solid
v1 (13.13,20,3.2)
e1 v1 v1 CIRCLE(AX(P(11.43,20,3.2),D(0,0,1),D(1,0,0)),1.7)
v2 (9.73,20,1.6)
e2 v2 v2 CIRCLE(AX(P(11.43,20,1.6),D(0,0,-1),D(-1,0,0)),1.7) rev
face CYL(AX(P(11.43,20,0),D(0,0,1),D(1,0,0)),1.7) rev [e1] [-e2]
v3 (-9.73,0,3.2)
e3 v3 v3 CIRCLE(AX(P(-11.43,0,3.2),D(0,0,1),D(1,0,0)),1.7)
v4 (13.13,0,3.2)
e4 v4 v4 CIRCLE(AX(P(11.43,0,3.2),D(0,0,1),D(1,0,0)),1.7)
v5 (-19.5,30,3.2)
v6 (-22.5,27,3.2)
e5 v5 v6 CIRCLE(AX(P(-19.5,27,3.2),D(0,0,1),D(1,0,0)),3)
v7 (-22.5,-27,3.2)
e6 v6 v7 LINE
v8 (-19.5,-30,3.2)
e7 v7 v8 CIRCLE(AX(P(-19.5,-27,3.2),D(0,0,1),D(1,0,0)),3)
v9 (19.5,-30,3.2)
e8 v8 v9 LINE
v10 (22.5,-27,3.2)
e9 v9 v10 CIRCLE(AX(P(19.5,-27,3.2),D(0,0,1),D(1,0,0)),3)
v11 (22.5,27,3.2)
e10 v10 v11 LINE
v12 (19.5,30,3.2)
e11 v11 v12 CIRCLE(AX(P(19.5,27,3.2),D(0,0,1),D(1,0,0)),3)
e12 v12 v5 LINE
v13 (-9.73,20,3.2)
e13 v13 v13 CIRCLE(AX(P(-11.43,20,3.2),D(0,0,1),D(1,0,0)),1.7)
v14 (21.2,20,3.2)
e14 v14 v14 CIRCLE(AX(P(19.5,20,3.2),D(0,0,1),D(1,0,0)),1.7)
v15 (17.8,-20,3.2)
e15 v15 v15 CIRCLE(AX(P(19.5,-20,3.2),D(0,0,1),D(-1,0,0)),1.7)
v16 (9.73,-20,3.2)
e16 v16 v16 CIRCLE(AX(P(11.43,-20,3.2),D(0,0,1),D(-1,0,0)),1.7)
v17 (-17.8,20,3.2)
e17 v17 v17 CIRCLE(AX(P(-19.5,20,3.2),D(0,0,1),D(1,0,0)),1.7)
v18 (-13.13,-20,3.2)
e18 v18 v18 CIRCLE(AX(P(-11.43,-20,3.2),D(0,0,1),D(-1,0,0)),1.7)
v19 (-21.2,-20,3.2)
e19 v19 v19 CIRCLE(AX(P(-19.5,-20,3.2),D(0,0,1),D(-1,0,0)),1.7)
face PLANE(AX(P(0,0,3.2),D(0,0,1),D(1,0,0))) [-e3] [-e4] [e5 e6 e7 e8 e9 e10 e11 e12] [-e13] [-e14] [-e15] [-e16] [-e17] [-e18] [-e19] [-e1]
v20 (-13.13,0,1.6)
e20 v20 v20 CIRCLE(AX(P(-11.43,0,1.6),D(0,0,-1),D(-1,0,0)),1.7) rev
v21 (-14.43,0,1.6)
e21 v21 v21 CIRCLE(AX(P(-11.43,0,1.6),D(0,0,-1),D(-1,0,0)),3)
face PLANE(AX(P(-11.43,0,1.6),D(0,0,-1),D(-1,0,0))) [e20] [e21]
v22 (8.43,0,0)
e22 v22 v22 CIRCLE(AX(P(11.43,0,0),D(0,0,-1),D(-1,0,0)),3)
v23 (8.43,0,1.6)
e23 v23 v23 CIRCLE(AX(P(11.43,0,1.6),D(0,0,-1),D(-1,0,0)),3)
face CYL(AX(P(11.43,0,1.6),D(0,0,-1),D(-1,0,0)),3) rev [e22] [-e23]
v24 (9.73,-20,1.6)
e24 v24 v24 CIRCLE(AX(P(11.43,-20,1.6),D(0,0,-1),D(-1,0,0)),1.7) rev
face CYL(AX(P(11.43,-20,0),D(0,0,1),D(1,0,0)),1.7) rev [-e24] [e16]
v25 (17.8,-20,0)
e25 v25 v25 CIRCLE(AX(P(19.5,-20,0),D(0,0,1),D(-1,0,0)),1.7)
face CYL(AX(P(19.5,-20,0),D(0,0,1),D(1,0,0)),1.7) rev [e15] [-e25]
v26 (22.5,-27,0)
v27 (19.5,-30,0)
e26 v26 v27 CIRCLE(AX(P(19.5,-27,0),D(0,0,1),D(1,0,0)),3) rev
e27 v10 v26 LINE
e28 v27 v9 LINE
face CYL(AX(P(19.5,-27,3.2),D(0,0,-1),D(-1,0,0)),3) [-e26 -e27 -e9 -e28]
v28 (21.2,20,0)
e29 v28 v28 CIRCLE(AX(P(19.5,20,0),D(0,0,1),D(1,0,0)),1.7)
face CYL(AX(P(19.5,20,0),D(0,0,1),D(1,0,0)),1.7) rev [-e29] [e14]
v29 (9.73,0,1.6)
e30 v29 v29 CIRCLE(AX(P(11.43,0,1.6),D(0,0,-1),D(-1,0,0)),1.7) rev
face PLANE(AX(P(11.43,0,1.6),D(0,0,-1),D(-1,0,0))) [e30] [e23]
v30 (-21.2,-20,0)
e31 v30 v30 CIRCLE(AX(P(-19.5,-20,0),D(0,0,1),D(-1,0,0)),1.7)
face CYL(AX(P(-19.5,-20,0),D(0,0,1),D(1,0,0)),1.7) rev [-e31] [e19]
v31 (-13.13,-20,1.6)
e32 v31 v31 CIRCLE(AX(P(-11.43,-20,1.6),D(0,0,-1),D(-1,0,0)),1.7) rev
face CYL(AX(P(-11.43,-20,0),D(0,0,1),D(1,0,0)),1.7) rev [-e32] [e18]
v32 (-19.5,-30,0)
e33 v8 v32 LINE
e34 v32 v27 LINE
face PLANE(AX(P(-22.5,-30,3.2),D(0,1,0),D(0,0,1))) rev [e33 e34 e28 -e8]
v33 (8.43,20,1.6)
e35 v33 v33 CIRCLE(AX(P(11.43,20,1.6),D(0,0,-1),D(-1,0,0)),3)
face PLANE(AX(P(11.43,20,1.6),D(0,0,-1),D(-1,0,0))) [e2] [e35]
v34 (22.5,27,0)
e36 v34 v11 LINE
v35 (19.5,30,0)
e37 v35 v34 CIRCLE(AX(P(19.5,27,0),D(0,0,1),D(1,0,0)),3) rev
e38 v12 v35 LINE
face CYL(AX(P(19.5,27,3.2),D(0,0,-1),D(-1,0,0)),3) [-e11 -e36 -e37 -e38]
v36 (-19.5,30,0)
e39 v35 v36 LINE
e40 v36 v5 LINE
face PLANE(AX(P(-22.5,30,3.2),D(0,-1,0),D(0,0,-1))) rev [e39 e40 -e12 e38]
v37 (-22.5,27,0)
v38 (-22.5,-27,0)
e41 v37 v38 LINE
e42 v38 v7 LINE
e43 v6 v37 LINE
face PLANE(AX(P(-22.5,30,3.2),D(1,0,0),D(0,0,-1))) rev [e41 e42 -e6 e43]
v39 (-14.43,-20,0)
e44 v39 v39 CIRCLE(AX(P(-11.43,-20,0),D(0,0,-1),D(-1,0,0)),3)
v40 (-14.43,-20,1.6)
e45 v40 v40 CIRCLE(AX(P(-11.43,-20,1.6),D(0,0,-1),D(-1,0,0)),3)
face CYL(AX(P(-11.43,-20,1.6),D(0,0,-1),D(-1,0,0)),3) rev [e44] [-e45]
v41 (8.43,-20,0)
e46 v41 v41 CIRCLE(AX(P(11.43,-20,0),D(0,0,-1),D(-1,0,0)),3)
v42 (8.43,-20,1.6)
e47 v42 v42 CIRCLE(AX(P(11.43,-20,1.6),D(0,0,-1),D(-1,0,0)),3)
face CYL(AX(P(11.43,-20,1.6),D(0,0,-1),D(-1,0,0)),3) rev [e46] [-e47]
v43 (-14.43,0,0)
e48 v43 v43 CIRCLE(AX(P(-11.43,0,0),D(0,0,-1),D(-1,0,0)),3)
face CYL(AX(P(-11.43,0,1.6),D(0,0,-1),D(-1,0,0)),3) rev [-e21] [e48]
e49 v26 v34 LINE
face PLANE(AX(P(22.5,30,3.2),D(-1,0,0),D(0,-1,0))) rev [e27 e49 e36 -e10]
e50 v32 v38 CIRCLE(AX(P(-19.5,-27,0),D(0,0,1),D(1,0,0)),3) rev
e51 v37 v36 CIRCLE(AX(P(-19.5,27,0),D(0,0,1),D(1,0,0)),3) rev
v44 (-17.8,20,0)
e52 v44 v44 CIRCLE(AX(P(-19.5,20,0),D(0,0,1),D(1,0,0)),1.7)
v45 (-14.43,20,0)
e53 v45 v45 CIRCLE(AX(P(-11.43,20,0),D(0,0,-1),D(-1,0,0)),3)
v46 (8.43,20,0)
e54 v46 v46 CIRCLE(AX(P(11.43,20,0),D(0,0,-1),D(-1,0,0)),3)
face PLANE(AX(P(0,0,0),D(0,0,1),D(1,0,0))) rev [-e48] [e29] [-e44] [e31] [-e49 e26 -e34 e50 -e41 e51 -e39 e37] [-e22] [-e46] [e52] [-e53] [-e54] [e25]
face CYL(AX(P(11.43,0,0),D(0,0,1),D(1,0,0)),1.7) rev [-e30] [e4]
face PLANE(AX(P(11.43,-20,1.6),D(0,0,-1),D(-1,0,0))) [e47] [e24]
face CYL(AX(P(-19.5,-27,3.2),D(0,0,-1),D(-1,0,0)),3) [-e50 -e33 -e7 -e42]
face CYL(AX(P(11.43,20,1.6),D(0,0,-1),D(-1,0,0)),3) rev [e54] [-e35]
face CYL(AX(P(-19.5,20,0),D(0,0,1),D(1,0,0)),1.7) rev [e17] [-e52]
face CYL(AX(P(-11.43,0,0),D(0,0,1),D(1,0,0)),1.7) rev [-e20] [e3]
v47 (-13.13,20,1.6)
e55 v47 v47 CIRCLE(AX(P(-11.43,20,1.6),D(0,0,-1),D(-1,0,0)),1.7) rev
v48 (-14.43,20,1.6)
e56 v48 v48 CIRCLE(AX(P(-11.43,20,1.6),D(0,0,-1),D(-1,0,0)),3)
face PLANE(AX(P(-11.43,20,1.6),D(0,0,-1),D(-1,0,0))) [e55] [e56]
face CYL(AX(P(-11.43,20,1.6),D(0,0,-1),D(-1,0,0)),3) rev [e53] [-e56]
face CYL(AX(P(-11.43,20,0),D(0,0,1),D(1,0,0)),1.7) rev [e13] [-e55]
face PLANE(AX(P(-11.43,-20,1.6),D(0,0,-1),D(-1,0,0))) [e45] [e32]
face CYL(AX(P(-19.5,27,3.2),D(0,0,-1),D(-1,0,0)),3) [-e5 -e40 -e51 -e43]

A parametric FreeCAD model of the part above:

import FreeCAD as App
import Part
import Sketcher
Q = App.Units.Quantity


def edges_at(feature, points):
    """Names of the edges that pass closest to the given points."""
    edges = feature.Shape.Edges
    near = lambda p: min(range(len(edges)), key=lambda i: edges[i].distToShape(Part.Vertex(*p))[0])
    return sorted({f"Edge{near(p) + 1}" for p in points})

doc = App.newDocument("Part")
body = doc.addObject("PartDesign::Body", "Body")

# Sketch on XY plane
sketch1 = body.newObject("Sketcher::SketchObject", "Sketch")
sketch1.AttachmentSupport = (doc.getObject("XY_Plane"), [""])
sketch1.MapMode = "FlatFace"
sketch1.addGeometry([
    Part.LineSegment(App.Vector(-22.5, 30, 0), App.Vector(-22.5, -30, 0)),
    Part.LineSegment(App.Vector(-22.5, -30, 0), App.Vector(22.5, -30, 0)),
    Part.LineSegment(App.Vector(22.5, -30, 0), App.Vector(22.5, 30, 0)),
    Part.LineSegment(App.Vector(22.5, 30, 0), App.Vector(-22.5, 30, 0)),
], False)
sketch1.addConstraint([
    Sketcher.Constraint("Coincident", 0, 2, 1, 1),
    Sketcher.Constraint("Coincident", 1, 2, 2, 1),
    Sketcher.Constraint("Coincident", 2, 2, 3, 1),
    Sketcher.Constraint("Coincident", 3, 2, 0, 1),
    Sketcher.Constraint("Vertical", 0),
    Sketcher.Constraint("Horizontal", 1),
    Sketcher.Constraint("Vertical", 2),
    Sketcher.Constraint("Horizontal", 3),
    Sketcher.Constraint("Symmetric", 0, 2, 2, 2, -1, 1),
    Sketcher.Constraint("DistanceX", 1, 1, 1, 2, Q("45 mm")),
    Sketcher.Constraint("DistanceY", 0, 2, 0, 1, Q("60 mm")),
])
pad1 = body.newObject("PartDesign::Pad", "Pad")
pad1.Profile = sketch1
pad1.Length = 3.2

# Sketch on XY plane
sketch2 = body.newObject("Sketcher::SketchObject", "Sketch001")
sketch2.AttachmentSupport = (doc.getObject("XY_Plane"), [""])
sketch2.MapMode = "FlatFace"
sketch2.AttachmentOffset = App.Placement(App.Vector(0, 0, 3.2), App.Rotation())
sketch2.addGeometry([
    Part.Circle(App.Vector(-11.43, 0, 0), App.Vector(0, 0, 1), 1.7),  # 0
    Part.Circle(App.Vector(11.43, 0, 0), App.Vector(0, 0, 1), 1.7),  # 1
    Part.Circle(App.Vector(11.43, 20, 0), App.Vector(0, 0, 1), 1.7),  # 2
    Part.Circle(App.Vector(-11.43, 20, 0), App.Vector(0, 0, 1), 1.7),  # 3
    Part.Circle(App.Vector(-11.43, -20, 0), App.Vector(0, 0, 1), 1.7),  # 4
    Part.Circle(App.Vector(11.43, -20, 0), App.Vector(0, 0, 1), 1.7),  # 5
], False)
sketch2.addConstraint([
    Sketcher.Constraint("Equal", 0, 1),
    Sketcher.Constraint("Equal", 1, 2),
    Sketcher.Constraint("Equal", 2, 3),
    Sketcher.Constraint("Equal", 3, 4),
    Sketcher.Constraint("Equal", 4, 5),
    Sketcher.Constraint("Symmetric", 0, 3, 1, 3, -1, 1),
    Sketcher.Constraint("Symmetric", 2, 3, 4, 3, -1, 1),
    Sketcher.Constraint("Symmetric", 3, 3, 5, 3, -1, 1),
    Sketcher.Constraint("Symmetric", 2, 3, 3, 3, -2),
    Sketcher.Constraint("PointOnObject", 0, 3, -1),
    Sketcher.Constraint("Vertical", 1, 3, 2, 3),
    Sketcher.Constraint("Diameter", 0, Q("3.4 mm")),
    Sketcher.Constraint("DistanceY", -1, 1, 2, 3, Q("20 mm")),
    Sketcher.Constraint("DistanceX", 0, 3, -1, 1, Q("11.43 mm")),
])
pocket1 = body.newObject("PartDesign::Pocket", "Pocket")
pocket1.Profile = sketch2
pocket1.Type = "ThroughAll"

# Sketch on XY plane
sketch3 = body.newObject("Sketcher::SketchObject", "Sketch002")
sketch3.AttachmentSupport = (doc.getObject("XY_Plane"), [""])
sketch3.MapMode = "FlatFace"
sketch3.AttachmentOffset = App.Placement(App.Vector(0, 0, 3.2), App.Rotation())
sketch3.addGeometry([
    Part.Circle(App.Vector(-19.5, 20, 0), App.Vector(0, 0, 1), 1.7),
    Part.Circle(App.Vector(19.5, 20, 0), App.Vector(0, 0, 1), 1.7),
    Part.Circle(App.Vector(19.5, -20, 0), App.Vector(0, 0, 1), 1.7),
    Part.Circle(App.Vector(-19.5, -20, 0), App.Vector(0, 0, 1), 1.7),
], False)
sketch3.addConstraint([
    Sketcher.Constraint("Equal", 0, 1),
    Sketcher.Constraint("Equal", 1, 2),
    Sketcher.Constraint("Equal", 2, 3),
    Sketcher.Constraint("Symmetric", 0, 3, 2, 3, -1, 1),
    Sketcher.Constraint("Symmetric", 1, 3, 3, 3, -1, 1),
    Sketcher.Constraint("Symmetric", 0, 3, 1, 3, -2),
    Sketcher.Constraint("Diameter", 0, Q("3.4 mm")),
    Sketcher.Constraint("DistanceY", -1, 1, 0, 3, Q("20 mm")),
    Sketcher.Constraint("DistanceX", 0, 3, 1, 3, Q("39 mm")),
])
pocket2 = body.newObject("PartDesign::Pocket", "Pocket001")
pocket2.Profile = sketch3
pocket2.Type = "ThroughAll"
doc.recompute()

fillet = body.newObject("PartDesign::Fillet", "Fillet")
fillet.Base = (pocket2, edges_at(pocket2, [
    (-22.5, 30, 1.6),
    (22.5, 30, 1.6),
    (22.5, -30, 1.6),
    (-22.5, -30, 1.6),
]))
fillet.Radius = 3

# Sketch on XY plane
sketch4 = body.newObject("Sketcher::SketchObject", "Sketch003")
sketch4.AttachmentSupport = (doc.getObject("XY_Plane"), [""])
sketch4.MapMode = "FlatFace"
sketch4.addGeometry([
    Part.Circle(App.Vector(11.43, 20, 0), App.Vector(0, 0, 1), 3),  # 0
    Part.Circle(App.Vector(-11.43, 20, 0), App.Vector(0, 0, 1), 3),  # 1
    Part.Circle(App.Vector(11.43, 0, 0), App.Vector(0, 0, 1), 3),  # 2
    Part.Circle(App.Vector(-11.43, 0, 0), App.Vector(0, 0, 1), 3),  # 3
    Part.Circle(App.Vector(11.43, -20, 0), App.Vector(0, 0, 1), 3),  # 4
    Part.Circle(App.Vector(-11.43, -20, 0), App.Vector(0, 0, 1), 3),  # 5
], False)
sketch4.addConstraint([
    Sketcher.Constraint("Equal", 0, 1),
    Sketcher.Constraint("Equal", 1, 2),
    Sketcher.Constraint("Equal", 2, 3),
    Sketcher.Constraint("Equal", 3, 4),
    Sketcher.Constraint("Equal", 4, 5),
    Sketcher.Constraint("Symmetric", 2, 3, 3, 3, -1, 1),
    Sketcher.Constraint("Symmetric", 1, 3, 4, 3, -1, 1),
    Sketcher.Constraint("Symmetric", 0, 3, 5, 3, -1, 1),
    Sketcher.Constraint("Symmetric", 0, 3, 1, 3, -2),
    Sketcher.Constraint("PointOnObject", 2, 3, -1),
    Sketcher.Constraint("Vertical", 0, 3, 2, 3),
    Sketcher.Constraint("Diameter", 0, Q("6 mm")),
    Sketcher.Constraint("DistanceY", -1, 1, 0, 3, Q("20 mm")),
    Sketcher.Constraint("DistanceX", -1, 1, 0, 3, Q("11.43 mm")),
])
pocket3 = body.newObject("PartDesign::Pocket", "Pocket002")
pocket3.Profile = sketch4
pocket3.Length = 1.6
pocket3.Reversed = True

doc.recompute()
